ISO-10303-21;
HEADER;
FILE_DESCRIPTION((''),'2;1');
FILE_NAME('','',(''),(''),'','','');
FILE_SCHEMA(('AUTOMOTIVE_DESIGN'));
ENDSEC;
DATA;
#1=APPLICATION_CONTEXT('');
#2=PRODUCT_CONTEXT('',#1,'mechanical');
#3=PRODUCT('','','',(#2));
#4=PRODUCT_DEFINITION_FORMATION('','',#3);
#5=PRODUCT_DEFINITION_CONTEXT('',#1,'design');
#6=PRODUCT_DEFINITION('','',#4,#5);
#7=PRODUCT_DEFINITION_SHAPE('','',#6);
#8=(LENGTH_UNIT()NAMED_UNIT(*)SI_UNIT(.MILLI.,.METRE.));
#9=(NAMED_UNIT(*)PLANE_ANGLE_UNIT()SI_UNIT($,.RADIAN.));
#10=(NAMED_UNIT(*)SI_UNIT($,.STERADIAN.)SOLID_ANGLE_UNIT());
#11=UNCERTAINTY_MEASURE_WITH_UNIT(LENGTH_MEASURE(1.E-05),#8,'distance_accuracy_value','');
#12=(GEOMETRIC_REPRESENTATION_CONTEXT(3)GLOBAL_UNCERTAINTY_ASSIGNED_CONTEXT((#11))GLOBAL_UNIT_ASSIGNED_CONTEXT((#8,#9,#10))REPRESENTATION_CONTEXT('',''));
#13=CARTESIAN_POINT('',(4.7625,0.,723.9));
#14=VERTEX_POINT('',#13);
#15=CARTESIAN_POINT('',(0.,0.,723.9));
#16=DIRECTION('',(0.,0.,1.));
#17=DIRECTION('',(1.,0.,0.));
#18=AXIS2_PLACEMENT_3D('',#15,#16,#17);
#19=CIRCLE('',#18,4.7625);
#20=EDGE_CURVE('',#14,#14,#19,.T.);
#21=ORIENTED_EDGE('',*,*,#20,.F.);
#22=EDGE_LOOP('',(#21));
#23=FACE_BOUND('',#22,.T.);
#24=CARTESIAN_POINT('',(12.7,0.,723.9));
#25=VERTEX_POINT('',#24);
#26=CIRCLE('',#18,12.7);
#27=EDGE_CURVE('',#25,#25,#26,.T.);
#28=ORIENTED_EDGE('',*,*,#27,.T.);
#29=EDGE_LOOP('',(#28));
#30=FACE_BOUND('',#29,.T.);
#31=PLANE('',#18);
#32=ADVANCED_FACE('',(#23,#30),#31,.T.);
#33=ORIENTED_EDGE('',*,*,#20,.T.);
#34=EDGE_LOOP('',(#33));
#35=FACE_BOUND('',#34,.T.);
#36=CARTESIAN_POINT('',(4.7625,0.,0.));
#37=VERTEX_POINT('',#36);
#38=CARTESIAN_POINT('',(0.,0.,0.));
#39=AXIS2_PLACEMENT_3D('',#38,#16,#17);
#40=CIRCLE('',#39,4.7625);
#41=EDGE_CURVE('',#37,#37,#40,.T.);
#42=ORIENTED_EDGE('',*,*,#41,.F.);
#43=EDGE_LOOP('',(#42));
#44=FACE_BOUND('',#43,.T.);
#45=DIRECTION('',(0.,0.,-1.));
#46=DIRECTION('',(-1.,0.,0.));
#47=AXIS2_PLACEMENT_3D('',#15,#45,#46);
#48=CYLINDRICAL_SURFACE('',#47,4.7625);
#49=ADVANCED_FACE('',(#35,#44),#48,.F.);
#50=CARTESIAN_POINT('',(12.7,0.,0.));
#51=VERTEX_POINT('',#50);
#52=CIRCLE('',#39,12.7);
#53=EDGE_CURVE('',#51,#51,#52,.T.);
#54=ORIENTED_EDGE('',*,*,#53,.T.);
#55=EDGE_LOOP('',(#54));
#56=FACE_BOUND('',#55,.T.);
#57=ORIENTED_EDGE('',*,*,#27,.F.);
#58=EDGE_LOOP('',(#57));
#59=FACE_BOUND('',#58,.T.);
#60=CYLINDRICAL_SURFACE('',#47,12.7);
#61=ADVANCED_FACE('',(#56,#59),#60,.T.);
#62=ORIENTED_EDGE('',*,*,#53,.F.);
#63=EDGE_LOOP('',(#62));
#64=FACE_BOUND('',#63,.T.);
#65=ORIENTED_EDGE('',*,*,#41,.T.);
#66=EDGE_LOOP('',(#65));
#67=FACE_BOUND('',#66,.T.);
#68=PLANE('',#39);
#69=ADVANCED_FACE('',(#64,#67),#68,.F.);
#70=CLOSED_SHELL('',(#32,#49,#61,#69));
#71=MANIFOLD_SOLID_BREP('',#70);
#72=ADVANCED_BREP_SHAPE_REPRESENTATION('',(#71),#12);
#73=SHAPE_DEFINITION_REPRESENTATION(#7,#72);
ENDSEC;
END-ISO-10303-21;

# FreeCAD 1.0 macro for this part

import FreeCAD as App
import Part
import Sketcher
from FreeCAD import Vector
Q = App.Units.Quantity

doc = App.newDocument("Part")
body = doc.addObject("PartDesign::Body", "Body")

sketch1 = body.newObject("Sketcher::SketchObject", "Sketch")
sketch1.AttachmentSupport = (doc.getObject("XY_Plane"), [""])
sketch1.MapMode = "FlatFace"
sketch1.addGeometry(Part.Circle(Vector(0, 0, 0), Vector(0, 0, 1), 12.7), False)
sketch1.addGeometry(Part.Circle(Vector(0, 0, 0), Vector(0, 0, 1), 4.8), False)
sketch1.addConstraint(Sketcher.Constraint("Coincident", 0, 3, -1, 1))
sketch1.addConstraint(Sketcher.Constraint("Coincident", 1, 3, -1, 1))
sketch1.addConstraint(Sketcher.Constraint("Diameter", 0, Q("1 in")))
sketch1.addConstraint(Sketcher.Constraint("Diameter", 1, Q("0.375 in")))
pad1 = body.newObject("PartDesign::Pad", "Pad")
pad1.Profile = sketch1
pad1.Length = Q("28.5 in")

doc.recompute()
